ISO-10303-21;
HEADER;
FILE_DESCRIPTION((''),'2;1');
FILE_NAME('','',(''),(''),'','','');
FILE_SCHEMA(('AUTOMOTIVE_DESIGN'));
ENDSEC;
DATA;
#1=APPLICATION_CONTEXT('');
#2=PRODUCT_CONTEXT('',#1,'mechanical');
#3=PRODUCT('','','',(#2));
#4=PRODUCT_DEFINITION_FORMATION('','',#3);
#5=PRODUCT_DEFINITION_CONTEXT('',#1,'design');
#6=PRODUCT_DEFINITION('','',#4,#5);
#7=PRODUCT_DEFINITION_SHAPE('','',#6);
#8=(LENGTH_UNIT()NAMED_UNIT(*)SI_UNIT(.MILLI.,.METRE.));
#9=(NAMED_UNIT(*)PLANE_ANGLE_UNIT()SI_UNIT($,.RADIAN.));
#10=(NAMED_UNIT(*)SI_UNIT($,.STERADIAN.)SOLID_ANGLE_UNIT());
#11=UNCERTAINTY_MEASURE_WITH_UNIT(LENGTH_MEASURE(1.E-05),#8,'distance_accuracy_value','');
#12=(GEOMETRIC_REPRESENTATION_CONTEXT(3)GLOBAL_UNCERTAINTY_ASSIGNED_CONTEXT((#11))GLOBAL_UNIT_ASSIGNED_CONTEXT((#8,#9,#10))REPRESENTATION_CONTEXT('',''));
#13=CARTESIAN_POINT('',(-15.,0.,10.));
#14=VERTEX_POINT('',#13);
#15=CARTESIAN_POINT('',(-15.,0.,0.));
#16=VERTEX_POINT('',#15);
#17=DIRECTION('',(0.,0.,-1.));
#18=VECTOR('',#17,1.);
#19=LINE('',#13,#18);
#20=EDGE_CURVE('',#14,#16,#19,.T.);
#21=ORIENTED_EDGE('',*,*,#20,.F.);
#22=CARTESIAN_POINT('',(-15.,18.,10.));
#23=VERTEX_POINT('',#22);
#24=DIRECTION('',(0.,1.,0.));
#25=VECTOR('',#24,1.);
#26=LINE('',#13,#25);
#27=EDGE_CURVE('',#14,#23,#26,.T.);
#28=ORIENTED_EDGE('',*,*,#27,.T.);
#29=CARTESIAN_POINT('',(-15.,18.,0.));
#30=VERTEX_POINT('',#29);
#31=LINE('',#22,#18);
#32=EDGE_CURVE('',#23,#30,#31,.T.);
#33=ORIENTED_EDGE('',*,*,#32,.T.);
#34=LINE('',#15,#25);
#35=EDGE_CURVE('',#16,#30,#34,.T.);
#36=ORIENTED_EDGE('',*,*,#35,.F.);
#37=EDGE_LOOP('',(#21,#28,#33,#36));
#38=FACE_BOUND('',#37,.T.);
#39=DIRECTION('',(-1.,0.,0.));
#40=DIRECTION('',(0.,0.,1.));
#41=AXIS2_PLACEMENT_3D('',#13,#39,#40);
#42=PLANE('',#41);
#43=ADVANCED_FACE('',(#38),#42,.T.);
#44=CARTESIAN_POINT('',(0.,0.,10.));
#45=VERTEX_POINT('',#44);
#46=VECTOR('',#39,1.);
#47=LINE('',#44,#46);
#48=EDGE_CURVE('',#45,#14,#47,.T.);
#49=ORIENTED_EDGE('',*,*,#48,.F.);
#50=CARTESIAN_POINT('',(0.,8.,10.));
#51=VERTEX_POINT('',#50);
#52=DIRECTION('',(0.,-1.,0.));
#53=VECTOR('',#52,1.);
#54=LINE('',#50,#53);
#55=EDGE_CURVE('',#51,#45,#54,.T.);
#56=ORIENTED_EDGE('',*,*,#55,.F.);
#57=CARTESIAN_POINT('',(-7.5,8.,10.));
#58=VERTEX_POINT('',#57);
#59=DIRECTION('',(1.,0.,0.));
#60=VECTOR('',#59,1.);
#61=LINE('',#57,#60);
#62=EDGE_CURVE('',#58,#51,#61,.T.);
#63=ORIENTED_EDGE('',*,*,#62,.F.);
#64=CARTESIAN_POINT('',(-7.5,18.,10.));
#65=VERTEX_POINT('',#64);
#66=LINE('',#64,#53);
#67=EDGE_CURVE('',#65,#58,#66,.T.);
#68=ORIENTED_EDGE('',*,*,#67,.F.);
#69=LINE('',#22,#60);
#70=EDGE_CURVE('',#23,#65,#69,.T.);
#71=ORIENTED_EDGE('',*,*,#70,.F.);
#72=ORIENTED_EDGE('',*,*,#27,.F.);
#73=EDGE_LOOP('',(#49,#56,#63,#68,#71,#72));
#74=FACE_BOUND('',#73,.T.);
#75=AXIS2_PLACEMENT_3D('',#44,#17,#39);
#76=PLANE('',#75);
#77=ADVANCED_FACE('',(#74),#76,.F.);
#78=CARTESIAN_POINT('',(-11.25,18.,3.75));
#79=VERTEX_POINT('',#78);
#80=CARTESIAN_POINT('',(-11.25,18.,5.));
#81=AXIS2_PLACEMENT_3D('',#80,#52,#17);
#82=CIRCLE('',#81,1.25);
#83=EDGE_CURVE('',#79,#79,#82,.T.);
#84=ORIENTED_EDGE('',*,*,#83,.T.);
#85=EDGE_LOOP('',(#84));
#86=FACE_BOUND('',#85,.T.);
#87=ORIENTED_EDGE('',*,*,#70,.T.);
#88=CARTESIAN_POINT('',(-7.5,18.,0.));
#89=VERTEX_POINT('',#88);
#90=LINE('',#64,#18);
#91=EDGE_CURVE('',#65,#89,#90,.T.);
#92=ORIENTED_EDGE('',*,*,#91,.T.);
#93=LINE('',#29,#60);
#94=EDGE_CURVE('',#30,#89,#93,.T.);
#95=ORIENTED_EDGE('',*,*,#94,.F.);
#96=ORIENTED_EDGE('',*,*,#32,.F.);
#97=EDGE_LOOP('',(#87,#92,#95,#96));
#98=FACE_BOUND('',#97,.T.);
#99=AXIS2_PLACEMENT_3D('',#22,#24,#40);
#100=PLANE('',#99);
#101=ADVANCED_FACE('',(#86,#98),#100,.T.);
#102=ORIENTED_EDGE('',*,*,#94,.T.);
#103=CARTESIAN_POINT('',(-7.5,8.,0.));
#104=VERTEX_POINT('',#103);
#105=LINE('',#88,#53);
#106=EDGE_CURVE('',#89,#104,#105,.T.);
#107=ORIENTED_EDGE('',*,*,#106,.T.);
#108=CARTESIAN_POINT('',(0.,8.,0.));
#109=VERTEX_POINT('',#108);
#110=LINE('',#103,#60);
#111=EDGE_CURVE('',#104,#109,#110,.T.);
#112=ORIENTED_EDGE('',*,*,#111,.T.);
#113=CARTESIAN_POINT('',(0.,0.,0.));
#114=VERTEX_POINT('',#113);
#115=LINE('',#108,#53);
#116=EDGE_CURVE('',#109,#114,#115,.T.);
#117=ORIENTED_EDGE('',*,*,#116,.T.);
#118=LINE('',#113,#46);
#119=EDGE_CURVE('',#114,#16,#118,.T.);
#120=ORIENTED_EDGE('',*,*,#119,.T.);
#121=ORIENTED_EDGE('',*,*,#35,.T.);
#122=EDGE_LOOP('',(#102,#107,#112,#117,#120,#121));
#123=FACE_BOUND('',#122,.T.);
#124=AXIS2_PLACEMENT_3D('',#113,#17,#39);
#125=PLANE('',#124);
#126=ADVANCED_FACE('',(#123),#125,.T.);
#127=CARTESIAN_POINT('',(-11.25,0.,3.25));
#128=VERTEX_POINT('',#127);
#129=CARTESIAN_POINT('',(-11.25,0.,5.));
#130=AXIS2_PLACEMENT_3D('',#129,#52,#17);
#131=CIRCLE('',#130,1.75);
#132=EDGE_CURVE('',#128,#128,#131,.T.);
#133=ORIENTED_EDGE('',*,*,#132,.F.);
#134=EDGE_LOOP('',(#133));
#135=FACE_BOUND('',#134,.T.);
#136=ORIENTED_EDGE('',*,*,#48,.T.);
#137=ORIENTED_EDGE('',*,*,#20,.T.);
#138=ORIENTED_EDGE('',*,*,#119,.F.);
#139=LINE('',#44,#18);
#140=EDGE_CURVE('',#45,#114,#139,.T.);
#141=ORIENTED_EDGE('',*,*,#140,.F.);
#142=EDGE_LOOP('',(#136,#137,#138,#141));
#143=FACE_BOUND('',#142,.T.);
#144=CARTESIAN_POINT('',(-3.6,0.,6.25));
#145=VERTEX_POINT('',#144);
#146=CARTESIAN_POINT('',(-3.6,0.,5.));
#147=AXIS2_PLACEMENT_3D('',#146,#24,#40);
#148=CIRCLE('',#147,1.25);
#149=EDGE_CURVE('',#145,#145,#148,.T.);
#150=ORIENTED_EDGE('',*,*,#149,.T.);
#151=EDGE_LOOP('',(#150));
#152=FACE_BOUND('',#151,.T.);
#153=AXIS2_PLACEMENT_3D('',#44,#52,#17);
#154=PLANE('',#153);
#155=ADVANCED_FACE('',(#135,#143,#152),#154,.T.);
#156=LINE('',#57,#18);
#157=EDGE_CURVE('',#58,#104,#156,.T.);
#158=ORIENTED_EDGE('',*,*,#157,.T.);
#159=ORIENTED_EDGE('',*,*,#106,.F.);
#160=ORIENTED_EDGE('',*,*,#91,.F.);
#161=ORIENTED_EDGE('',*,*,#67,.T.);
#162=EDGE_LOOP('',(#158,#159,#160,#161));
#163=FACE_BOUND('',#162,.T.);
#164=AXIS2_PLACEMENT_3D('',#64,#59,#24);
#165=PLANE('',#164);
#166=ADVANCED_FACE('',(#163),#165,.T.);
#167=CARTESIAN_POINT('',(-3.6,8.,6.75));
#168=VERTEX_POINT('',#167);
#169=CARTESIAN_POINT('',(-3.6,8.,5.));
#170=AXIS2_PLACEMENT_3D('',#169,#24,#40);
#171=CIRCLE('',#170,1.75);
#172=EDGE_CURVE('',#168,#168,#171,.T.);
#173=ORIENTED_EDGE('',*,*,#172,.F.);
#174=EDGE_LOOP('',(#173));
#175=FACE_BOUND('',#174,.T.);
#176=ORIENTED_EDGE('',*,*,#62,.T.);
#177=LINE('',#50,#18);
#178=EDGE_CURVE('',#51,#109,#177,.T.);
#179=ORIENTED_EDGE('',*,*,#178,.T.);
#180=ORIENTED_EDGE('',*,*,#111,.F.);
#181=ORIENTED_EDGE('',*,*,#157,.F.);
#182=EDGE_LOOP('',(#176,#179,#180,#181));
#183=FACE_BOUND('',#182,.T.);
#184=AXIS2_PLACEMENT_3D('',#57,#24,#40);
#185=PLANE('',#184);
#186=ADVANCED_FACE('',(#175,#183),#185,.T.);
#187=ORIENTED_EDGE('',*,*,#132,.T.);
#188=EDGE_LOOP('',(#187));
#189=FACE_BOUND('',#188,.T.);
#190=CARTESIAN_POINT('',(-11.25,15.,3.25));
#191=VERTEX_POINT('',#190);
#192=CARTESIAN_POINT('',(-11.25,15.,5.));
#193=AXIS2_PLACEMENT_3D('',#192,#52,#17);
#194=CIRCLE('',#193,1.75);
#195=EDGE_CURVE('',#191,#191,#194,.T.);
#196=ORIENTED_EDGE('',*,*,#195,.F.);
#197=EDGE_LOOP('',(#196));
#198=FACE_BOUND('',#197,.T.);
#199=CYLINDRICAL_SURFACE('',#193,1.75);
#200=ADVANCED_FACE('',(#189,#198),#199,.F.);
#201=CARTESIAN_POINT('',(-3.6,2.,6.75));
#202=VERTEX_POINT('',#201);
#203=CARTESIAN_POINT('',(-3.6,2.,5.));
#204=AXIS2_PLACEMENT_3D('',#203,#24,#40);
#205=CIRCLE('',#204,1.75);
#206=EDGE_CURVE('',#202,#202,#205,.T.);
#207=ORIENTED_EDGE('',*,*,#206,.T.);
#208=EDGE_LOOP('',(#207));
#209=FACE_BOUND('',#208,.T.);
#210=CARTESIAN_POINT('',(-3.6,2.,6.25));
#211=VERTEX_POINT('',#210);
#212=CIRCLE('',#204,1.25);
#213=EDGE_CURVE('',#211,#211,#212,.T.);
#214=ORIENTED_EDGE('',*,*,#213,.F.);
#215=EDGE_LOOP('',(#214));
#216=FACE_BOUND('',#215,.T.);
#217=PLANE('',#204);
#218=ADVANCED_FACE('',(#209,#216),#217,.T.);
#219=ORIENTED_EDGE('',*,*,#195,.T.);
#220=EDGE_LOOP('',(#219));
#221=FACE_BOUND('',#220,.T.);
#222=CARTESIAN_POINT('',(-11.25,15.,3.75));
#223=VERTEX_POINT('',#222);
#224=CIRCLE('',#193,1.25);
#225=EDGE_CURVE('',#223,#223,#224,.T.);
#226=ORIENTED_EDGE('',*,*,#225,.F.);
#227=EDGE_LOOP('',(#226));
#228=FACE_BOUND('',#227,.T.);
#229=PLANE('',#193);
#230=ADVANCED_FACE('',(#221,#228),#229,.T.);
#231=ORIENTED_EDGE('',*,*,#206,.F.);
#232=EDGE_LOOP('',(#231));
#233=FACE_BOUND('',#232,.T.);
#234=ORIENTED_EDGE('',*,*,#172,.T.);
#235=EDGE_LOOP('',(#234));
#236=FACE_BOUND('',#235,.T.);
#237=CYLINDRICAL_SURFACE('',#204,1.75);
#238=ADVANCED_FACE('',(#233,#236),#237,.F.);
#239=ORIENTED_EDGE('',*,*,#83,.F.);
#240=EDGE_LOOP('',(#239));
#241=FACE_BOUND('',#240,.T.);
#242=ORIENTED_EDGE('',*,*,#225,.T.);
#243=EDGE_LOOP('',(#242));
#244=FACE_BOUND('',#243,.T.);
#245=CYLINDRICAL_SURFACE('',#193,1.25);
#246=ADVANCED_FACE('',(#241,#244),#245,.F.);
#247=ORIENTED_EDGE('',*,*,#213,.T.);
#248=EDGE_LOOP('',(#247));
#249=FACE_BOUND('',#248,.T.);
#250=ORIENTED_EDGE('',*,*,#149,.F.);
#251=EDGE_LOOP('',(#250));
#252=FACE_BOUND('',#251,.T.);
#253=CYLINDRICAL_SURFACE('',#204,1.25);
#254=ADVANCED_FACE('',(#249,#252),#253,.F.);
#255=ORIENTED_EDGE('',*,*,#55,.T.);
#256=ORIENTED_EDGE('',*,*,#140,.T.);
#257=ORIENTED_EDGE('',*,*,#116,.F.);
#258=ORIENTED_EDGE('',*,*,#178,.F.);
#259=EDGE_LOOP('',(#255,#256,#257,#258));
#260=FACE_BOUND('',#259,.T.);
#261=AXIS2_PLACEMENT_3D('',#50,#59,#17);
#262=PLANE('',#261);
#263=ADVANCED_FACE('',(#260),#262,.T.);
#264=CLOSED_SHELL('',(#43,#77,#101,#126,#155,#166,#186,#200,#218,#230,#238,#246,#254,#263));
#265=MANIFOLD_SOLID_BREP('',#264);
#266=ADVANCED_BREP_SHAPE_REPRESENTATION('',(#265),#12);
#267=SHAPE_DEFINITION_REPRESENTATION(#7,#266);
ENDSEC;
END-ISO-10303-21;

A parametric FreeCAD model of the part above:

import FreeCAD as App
import Part
import Sketcher
Q = App.Units.Quantity


def add_polygon(sketch, points):
    """Adds a closed chain of lines whose ends are joined by coincident constraints."""
    first, n = sketch.GeometryCount, len(points)
    for a, b in zip(points, points[1:] + points[:1]):
        sketch.addGeometry(Part.LineSegment(App.Vector(*a, 0), App.Vector(*b, 0)), False)
    for i in range(n):
        sketch.addConstraint(Sketcher.Constraint("Coincident", first + i, 2, first + (i + 1) % n, 1))

doc = App.newDocument("Part")
params = doc.addObject("Spreadsheet::Sheet", "Params")
for row, (alias, value) in enumerate([
    ("sketch1_width", "15 mm"),
    ("sketch1_height", "8 mm"),
    ("sketch1_height2", "10 mm"),
    ("pad1_length", "10 mm"),
    ("sketch2_diameter", "3.5 mm"),
    ("pocket1_length", "6 mm"),
    ("sketch3_diameter", "2.5 mm"),
    ("hole_diameter", "2.5 mm"),
    ("sketch4_diameter", "3.5 mm"),
    ("pocket2_length", "15 mm"),
    ("sketch5_diameter", "2.5 mm"),
    ("hole2_diameter", "2.5 mm"),
], start=1):
    params.set(f"A{row}", alias)
    params.set(f"B{row}", "=" + value)
    params.setAlias(f"B{row}", alias)

body = doc.addObject("PartDesign::Body", "Body")

sketch1 = body.newObject("Sketcher::SketchObject", "Sketch")
sketch1.AttachmentSupport = (doc.getObject("XY_Plane"), [""])
sketch1.MapMode = "FlatFace"
add_polygon(sketch1, [(-15, 0), (0, 0), (0, 8), (-7.5, 8), (-7.5, 18), (-15, 18)])
sketch1.addConstraint([
    Sketcher.Constraint("Horizontal", 0),
    Sketcher.Constraint("Vertical", 1),
    Sketcher.Constraint("Horizontal", 2),
    Sketcher.Constraint("Vertical", 3),
    Sketcher.Constraint("Horizontal", 4),
    Sketcher.Constraint("Vertical", 5),
    Sketcher.Constraint("Coincident", 0, 2, -1, 1),
    Sketcher.Constraint("Equal", 2, 4),
    Sketcher.Constraint("DistanceX", 0, 1, 0, 2, Q("15 mm")),
    Sketcher.Constraint("DistanceY", 1, 1, 1, 2, Q("8 mm")),
    Sketcher.Constraint("DistanceY", 3, 1, 3, 2, Q("10 mm")),
])
sketch1.setExpression("Constraints[14]", "Params.sketch1_width")
sketch1.setExpression("Constraints[15]", "Params.sketch1_height")
sketch1.setExpression("Constraints[16]", "Params.sketch1_height2")
pad1 = body.newObject("PartDesign::Pad", "Pad")
pad1.Profile = sketch1
pad1.setExpression("Length", "Params.pad1_length")

sketch2 = body.newObject("Sketcher::SketchObject", "Sketch001")
sketch2.AttachmentSupport = (doc.getObject("XZ_Plane"), [""])
sketch2.MapMode = "FlatFace"
sketch2.AttachmentOffset = App.Placement(App.Vector(0, 0, -8), App.Rotation())
sketch2.addGeometry(Part.Circle(App.Vector(-3.6, 5, 0), App.Vector(0, 0, 1), 1.75), False)
sketch2.addConstraint([
    Sketcher.Constraint("Diameter", 0, Q("3.5 mm")),
    Sketcher.Constraint("DistanceY", -1, 1, 0, 3, Q("5 mm")),
    Sketcher.Constraint("DistanceX", 0, 3, -1, 1, Q("3.6 mm")),
])
sketch2.setExpression("Constraints[0]", "Params.sketch2_diameter")
pocket1 = body.newObject("PartDesign::Pocket", "Pocket")
pocket1.Profile = sketch2
pocket1.setExpression("Length", "Params.pocket1_length")
pocket1.Reversed = True

sketch3 = body.newObject("Sketcher::SketchObject", "Sketch002")
sketch3.AttachmentSupport = (doc.getObject("XZ_Plane"), [""])
sketch3.MapMode = "FlatFace"
sketch3.AttachmentOffset = App.Placement(App.Vector(0, 0, -2), App.Rotation())
sketch3.addGeometry(Part.Circle(App.Vector(-3.6, 5, 0), App.Vector(0, 0, 1), 1.25), False)
sketch3.addConstraint([
    Sketcher.Constraint("Diameter", 0, Q("2.5 mm")),
    Sketcher.Constraint("DistanceY", -1, 1, 0, 3, Q("5 mm")),
    Sketcher.Constraint("DistanceX", 0, 3, -1, 1, Q("3.6 mm")),
])
sketch3.setExpression("Constraints[0]", "Params.sketch3_diameter")
doc.recompute()
hole = body.newObject("PartDesign::Hole", "Hole")
hole.Profile = sketch3
hole.ThreadType = "None"
hole.setExpression("Diameter", "Params.hole_diameter")
hole.DepthType = "ThroughAll"
hole.Reversed = True

sketch4 = body.newObject("Sketcher::SketchObject", "Sketch003")
sketch4.AttachmentSupport = (doc.getObject("XZ_Plane"), [""])
sketch4.MapMode = "FlatFace"
sketch4.addGeometry(Part.Circle(App.Vector(-11.25, 5, 0), App.Vector(0, 0, 1), 1.75), False)
sketch4.addConstraint([
    Sketcher.Constraint("Diameter", 0, Q("3.5 mm")),
    Sketcher.Constraint("DistanceY", -1, 1, 0, 3, Q("5 mm")),
    Sketcher.Constraint("DistanceX", 0, 3, -1, 1, Q("11.25 mm")),
])
sketch4.setExpression("Constraints[0]", "Params.sketch4_diameter")
pocket2 = body.newObject("PartDesign::Pocket", "Pocket001")
pocket2.Profile = sketch4
pocket2.setExpression("Length", "Params.pocket2_length")

sketch5 = body.newObject("Sketcher::SketchObject", "Sketch004")
sketch5.AttachmentSupport = (doc.getObject("XZ_Plane"), [""])
sketch5.MapMode = "FlatFace"
sketch5.AttachmentOffset = App.Placement(App.Vector(0, 0, -15), App.Rotation())
sketch5.addGeometry(Part.Circle(App.Vector(-11.25, 5, 0), App.Vector(0, 0, 1), 1.25), False)
sketch5.addConstraint([
    Sketcher.Constraint("Diameter", 0, Q("2.5 mm")),
    Sketcher.Constraint("DistanceY", -1, 1, 0, 3, Q("5 mm")),
    Sketcher.Constraint("DistanceX", 0, 3, -1, 1, Q("11.25 mm")),
])
sketch5.setExpression("Constraints[0]", "Params.sketch5_diameter")
doc.recompute()
hole2 = body.newObject("PartDesign::Hole", "Hole001")
hole2.Profile = sketch5
hole2.ThreadType = "None"
hole2.setExpression("Diameter", "Params.hole2_diameter")
hole2.DepthType = "ThroughAll"

doc.recompute()
